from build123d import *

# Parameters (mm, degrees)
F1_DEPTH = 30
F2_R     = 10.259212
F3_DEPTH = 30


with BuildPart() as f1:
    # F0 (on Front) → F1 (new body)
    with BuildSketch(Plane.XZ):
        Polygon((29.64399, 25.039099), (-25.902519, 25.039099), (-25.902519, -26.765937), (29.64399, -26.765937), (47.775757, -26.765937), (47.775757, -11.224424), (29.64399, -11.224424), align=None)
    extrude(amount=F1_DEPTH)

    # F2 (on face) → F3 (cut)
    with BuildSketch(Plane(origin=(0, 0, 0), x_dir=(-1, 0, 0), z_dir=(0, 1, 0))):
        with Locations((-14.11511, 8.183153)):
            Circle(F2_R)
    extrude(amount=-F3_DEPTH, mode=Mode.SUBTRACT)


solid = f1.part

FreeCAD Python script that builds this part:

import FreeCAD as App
import Part
import Sketcher
from FreeCAD import Vector
Q = App.Units.Quantity

doc = App.newDocument("Part")
body = doc.addObject("PartDesign::Body", "Body")

# Sketch on XZ plane
sketch1 = doc.addObject("Sketcher::SketchObject", "Sketch")
body.addObject(sketch1)
sketch1.AttachmentSupport = (doc.XZ_Plane, [""])
sketch1.MapMode = "FlatFace"
sketch1.addGeometry([
    Part.LineSegment(Vector(30, 25, 0), Vector(-26, 25, 0)),  # 0
    Part.LineSegment(Vector(-26, 25, 0), Vector(-26, -27, 0)),  # 1
    Part.LineSegment(Vector(-26, -27, 0), Vector(48, -27, 0)),  # 2
    Part.LineSegment(Vector(48, -27, 0), Vector(48, -11, 0)),  # 3
    Part.LineSegment(Vector(48, -11, 0), Vector(30, -11, 0)),  # 4
    Part.LineSegment(Vector(30, -11, 0), Vector(30, 25, 0)),  # 5
], False)
sketch1.addConstraint([
    Sketcher.Constraint("Coincident", 0, 2, 1, 1),
    Sketcher.Constraint("Coincident", 1, 2, 2, 1),
    Sketcher.Constraint("Coincident", 2, 2, 3, 1),
    Sketcher.Constraint("Coincident", 3, 2, 4, 1),
    Sketcher.Constraint("Coincident", 4, 2, 5, 1),
    Sketcher.Constraint("Coincident", 5, 2, 0, 1),
    Sketcher.Constraint("Horizontal", 0),
    Sketcher.Constraint("Vertical", 1),
    Sketcher.Constraint("Horizontal", 2),
    Sketcher.Constraint("Vertical", 3),
    Sketcher.Constraint("Horizontal", 4),
    Sketcher.Constraint("Vertical", 5),
    Sketcher.Constraint("DistanceX", 0, 2, 0, 1, Q("55.546509 mm")),
    Sketcher.Constraint("DistanceY", -1, 1, 0, 2, Q("25.039099 mm")),
    Sketcher.Constraint("DistanceX", 2, 1, 2, 2, Q("73.678276 mm")),
    Sketcher.Constraint("DistanceY", 1, 2, 1, 1, Q("51.805036 mm")),
    Sketcher.Constraint("DistanceY", 3, 1, 3, 2, Q("15.541513 mm")),
    Sketcher.Constraint("DistanceX", 0, 2, -1, 1, Q("25.902519 mm")),
])
pad1 = doc.addObject("PartDesign::Pad", "Pad")
body.addObject(pad1)
pad1.Profile = sketch1
pad1.Length = 30

# Sketch on XZ plane
sketch2 = doc.addObject("Sketcher::SketchObject", "Sketch001")
body.addObject(sketch2)
sketch2.AttachmentSupport = (doc.XZ_Plane, [""])
sketch2.MapMode = "FlatFace"
sketch2.addGeometry(Part.Circle(Vector(14, 8, 0), Vector(0, 0, 1), 10), False)
sketch2.addConstraint([
    Sketcher.Constraint("Diameter", 0, Q("20.518424 mm")),
    Sketcher.Constraint("DistanceX", -1, 1, 0, 3, Q("14.11511 mm")),
    Sketcher.Constraint("DistanceY", -1, 1, 0, 3, Q("8.183153 mm")),
])
pocket1 = doc.addObject("PartDesign::Pocket", "Pocket")
body.addObject(pocket1)
pocket1.Profile = sketch2
pocket1.Length = 30
pocket1.Reversed = True

doc.recompute()
